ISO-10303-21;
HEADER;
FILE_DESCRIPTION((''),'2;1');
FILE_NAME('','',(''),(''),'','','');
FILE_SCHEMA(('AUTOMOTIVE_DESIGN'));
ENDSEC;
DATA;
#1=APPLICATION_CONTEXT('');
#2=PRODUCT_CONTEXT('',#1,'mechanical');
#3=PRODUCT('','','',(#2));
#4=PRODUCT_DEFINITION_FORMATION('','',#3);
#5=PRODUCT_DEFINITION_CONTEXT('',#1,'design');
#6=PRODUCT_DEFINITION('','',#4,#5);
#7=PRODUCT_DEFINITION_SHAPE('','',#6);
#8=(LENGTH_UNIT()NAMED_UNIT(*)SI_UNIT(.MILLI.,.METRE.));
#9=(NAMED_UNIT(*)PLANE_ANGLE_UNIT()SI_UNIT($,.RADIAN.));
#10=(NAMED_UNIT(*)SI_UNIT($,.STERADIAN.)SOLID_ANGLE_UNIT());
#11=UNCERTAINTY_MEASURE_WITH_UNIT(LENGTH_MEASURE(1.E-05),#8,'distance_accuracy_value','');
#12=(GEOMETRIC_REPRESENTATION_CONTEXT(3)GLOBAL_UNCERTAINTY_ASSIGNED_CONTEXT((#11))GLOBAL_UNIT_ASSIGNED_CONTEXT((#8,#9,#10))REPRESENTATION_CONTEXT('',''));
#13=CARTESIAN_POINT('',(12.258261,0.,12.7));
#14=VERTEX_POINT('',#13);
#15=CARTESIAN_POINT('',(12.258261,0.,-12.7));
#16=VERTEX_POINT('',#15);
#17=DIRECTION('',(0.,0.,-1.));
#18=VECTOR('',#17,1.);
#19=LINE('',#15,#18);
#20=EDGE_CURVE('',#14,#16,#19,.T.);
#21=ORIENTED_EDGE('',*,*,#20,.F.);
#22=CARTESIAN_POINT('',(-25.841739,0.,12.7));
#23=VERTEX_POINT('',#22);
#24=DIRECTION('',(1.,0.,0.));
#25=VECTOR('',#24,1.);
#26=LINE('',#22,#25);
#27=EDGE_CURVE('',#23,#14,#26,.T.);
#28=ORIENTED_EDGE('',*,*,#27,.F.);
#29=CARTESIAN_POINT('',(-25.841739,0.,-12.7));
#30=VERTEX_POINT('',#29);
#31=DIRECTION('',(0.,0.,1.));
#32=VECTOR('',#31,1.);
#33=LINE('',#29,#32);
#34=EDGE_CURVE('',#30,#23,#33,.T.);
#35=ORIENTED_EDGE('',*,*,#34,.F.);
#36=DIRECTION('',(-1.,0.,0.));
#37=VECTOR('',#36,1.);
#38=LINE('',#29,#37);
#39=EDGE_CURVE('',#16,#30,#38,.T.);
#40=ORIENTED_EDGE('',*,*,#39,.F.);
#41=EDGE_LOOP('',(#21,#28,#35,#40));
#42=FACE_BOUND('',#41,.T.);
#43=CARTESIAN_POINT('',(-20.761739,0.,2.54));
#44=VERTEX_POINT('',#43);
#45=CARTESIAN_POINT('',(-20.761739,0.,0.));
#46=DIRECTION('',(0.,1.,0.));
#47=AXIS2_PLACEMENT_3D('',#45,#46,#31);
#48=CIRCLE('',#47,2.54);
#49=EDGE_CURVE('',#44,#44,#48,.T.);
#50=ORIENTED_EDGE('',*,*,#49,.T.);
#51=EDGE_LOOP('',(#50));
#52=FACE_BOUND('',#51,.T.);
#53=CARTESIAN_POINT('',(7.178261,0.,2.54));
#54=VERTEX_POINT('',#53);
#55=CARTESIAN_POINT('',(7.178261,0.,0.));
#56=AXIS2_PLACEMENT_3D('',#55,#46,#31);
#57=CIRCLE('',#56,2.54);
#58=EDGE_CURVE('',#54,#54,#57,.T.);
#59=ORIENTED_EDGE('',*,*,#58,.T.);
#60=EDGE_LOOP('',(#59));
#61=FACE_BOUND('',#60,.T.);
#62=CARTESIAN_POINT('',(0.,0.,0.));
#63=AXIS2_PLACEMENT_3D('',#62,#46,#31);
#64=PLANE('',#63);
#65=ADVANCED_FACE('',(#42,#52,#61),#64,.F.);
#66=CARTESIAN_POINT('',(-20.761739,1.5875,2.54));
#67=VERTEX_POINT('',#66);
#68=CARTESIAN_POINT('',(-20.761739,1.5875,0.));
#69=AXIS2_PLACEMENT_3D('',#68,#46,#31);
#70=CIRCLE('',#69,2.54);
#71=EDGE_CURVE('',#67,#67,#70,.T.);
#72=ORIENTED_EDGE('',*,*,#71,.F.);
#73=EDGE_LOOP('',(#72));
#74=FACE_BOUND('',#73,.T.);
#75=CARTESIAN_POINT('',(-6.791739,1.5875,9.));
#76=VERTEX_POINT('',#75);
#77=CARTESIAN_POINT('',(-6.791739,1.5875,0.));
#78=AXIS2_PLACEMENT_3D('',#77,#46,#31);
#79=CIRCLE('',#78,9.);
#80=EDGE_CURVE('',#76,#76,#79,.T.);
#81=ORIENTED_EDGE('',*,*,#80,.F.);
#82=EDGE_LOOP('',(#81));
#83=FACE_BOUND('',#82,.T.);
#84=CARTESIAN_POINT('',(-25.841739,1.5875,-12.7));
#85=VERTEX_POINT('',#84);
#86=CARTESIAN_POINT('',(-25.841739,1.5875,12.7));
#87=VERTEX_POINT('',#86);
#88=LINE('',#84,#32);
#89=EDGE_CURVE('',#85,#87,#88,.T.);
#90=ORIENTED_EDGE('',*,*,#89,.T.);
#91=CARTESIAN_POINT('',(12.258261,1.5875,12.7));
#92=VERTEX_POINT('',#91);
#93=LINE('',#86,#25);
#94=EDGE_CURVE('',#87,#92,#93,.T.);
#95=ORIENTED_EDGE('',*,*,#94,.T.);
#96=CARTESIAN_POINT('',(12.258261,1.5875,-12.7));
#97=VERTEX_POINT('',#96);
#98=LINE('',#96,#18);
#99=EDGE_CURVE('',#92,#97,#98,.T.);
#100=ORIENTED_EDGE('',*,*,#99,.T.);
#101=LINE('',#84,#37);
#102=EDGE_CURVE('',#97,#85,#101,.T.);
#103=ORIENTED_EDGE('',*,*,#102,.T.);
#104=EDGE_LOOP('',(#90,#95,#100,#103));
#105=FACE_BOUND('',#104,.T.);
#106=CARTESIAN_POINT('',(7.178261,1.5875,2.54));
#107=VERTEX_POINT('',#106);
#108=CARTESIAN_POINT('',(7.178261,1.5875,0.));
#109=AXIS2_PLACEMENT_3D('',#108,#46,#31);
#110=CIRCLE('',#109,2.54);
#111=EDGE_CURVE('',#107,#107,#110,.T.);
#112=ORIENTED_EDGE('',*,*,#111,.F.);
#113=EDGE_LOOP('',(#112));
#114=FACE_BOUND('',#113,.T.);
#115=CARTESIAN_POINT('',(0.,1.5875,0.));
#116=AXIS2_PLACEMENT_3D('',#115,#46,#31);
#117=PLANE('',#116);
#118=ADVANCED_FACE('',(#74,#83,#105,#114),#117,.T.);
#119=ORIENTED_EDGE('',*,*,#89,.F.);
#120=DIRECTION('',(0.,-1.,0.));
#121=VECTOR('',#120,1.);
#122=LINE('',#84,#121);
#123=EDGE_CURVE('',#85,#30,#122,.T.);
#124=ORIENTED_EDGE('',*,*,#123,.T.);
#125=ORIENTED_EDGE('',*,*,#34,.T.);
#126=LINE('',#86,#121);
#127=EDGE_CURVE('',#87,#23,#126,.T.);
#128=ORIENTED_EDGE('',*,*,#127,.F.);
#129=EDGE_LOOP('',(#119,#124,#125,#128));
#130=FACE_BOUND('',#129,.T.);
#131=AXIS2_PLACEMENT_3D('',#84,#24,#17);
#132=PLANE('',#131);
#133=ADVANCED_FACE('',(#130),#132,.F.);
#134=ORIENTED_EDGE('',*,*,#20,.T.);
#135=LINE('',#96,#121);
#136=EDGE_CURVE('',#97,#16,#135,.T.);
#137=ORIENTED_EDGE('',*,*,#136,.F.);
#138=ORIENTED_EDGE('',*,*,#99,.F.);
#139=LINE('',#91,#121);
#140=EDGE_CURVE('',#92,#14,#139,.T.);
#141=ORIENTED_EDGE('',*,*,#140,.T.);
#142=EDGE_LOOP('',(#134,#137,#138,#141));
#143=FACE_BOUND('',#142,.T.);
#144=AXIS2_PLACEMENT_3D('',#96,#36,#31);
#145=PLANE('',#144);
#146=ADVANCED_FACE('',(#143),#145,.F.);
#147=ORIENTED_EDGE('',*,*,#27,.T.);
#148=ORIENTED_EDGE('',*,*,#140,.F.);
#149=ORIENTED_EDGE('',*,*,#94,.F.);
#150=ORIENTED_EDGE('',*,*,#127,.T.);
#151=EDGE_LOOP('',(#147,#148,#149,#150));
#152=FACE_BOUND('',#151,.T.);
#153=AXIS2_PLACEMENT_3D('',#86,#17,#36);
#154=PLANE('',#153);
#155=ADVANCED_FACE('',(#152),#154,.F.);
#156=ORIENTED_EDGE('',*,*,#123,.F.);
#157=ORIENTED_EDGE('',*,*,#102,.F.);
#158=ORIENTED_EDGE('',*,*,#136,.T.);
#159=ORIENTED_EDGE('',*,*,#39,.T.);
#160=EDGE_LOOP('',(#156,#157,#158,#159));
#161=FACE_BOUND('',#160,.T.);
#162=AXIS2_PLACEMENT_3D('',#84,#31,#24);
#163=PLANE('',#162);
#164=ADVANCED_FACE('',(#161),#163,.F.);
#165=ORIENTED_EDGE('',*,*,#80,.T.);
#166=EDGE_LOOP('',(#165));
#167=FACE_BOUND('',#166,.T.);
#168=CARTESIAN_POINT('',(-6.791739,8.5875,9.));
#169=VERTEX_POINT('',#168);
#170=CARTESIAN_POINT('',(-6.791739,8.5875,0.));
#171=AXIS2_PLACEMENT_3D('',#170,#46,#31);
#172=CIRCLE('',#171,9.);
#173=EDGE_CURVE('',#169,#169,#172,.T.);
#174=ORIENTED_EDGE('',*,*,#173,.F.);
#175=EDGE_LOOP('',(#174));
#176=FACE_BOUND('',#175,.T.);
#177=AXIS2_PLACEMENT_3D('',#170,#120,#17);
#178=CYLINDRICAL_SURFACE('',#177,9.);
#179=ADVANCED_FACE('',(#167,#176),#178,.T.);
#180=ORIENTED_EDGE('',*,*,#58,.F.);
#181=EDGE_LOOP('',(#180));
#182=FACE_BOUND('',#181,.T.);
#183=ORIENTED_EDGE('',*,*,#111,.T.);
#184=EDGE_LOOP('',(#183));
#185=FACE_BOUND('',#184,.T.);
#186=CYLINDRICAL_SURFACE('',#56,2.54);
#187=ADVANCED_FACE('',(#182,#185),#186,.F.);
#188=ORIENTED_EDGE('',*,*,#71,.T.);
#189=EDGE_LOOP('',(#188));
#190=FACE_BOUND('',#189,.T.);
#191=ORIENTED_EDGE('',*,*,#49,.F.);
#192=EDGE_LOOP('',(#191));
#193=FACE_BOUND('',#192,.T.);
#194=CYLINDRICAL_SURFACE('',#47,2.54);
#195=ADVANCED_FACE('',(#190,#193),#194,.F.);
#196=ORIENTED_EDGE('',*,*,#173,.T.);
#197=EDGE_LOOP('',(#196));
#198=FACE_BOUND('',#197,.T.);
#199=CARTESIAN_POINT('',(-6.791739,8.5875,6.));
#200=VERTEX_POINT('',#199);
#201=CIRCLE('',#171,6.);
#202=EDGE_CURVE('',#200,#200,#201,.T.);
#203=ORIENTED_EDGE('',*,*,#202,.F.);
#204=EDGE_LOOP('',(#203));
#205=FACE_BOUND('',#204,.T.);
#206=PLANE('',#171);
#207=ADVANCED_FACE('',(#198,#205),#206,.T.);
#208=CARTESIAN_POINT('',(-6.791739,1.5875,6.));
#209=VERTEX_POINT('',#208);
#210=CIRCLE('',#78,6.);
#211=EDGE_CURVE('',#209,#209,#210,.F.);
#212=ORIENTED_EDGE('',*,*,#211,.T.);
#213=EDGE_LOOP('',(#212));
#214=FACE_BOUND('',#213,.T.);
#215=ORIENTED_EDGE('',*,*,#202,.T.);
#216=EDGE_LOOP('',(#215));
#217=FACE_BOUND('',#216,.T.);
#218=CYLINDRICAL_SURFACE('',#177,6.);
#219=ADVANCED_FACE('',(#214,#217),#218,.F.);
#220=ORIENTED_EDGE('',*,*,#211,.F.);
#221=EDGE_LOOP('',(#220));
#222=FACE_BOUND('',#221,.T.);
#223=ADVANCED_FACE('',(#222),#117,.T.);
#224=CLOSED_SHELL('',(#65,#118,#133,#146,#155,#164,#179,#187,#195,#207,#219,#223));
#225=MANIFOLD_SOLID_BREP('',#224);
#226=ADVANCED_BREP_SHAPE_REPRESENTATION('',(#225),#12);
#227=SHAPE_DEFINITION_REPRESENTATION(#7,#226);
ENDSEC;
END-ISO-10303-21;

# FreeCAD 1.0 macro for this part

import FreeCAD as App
import Part
import Sketcher
Q = App.Units.Quantity

doc = App.newDocument("Part")
body = doc.addObject("PartDesign::Body", "Body")

# Sketch on XZ plane
sketch1 = doc.addObject("Sketcher::SketchObject", "Sketch")
body.addObject(sketch1)
sketch1.AttachmentSupport = (doc.XZ_Plane, [""])
sketch1.MapMode = "FlatFace"
sketch1.addGeometry([
    Part.LineSegment(App.Vector(-26, -13, 0), App.Vector(-26, 13, 0)),
    Part.LineSegment(App.Vector(-26, 13, 0), App.Vector(12, 13, 0)),
    Part.LineSegment(App.Vector(12, 13, 0), App.Vector(12, -13, 0)),
    Part.LineSegment(App.Vector(12, -13, 0), App.Vector(-26, -13, 0)),
], False)
sketch1.addConstraint([
    Sketcher.Constraint("Coincident", 0, 2, 1, 1),
    Sketcher.Constraint("Coincident", 1, 2, 2, 1),
    Sketcher.Constraint("Coincident", 2, 2, 3, 1),
    Sketcher.Constraint("Coincident", 3, 2, 0, 1),
    Sketcher.Constraint("Vertical", 0),
    Sketcher.Constraint("Horizontal", 1),
    Sketcher.Constraint("Vertical", 2),
    Sketcher.Constraint("Horizontal", 3),
    Sketcher.Constraint("DistanceY", 0, 1, 0, 2, Q("1 in")),
    Sketcher.Constraint("DistanceX", 1, 1, 1, 2, Q("1.5 in")),
    Sketcher.Constraint("DistanceY", -1, 1, 0, 2, Q("0.5 in")),
    Sketcher.Constraint("DistanceX", 0, 2, -1, 1, 25.841739),
])
pad1 = doc.addObject("PartDesign::Pad", "Pad")
body.addObject(pad1)
pad1.Profile = sketch1
pad1.Length = Q("0.0625 in")
pad1.Reversed = True

# Sketch on XZ plane
sketch2 = doc.addObject("Sketcher::SketchObject", "Sketch001")
body.addObject(sketch2)
sketch2.AttachmentSupport = (doc.XZ_Plane, [""])
sketch2.MapMode = "FlatFace"
sketch2.AttachmentOffset = App.Placement(App.Vector(0, 0, -0.0625 * 25.4), App.Rotation())
sketch2.addGeometry([
    Part.Circle(App.Vector(-7, 0, 0), App.Vector(0, 0, 1), 9),
    Part.Circle(App.Vector(-7, 0, 0), App.Vector(0, 0, 1), 6),
], False)
sketch2.addConstraint([
    Sketcher.Constraint("Coincident", 1, 3, 0, 3),
    Sketcher.Constraint("PointOnObject", 0, 3, -1),
    Sketcher.Constraint("Diameter", 0, 18.0),
    Sketcher.Constraint("Diameter", 1, 12.0),
    Sketcher.Constraint("DistanceX", 0, 3, -1, 1, 6.791739),
])
pad2 = doc.addObject("PartDesign::Pad", "Pad001")
body.addObject(pad2)
pad2.Profile = sketch2
pad2.Length = 7
pad2.Reversed = True

# Sketch on XZ plane
sketch3 = doc.addObject("Sketcher::SketchObject", "Sketch002")
body.addObject(sketch3)
sketch3.AttachmentSupport = (doc.XZ_Plane, [""])
sketch3.MapMode = "FlatFace"
sketch3.AttachmentOffset = App.Placement(App.Vector(0, 0, -0.0625 * 25.4), App.Rotation())
sketch3.addGeometry([
    Part.Circle(App.Vector(7.2, 0, 0), App.Vector(0, 0, 1), 2.5),
    Part.Circle(App.Vector(-20.8, 0, 0), App.Vector(0, 0, 1), 2.5),
], False)
sketch3.addConstraint([
    Sketcher.Constraint("Equal", 0, 1),
    Sketcher.Constraint("PointOnObject", 0, 3, -1),
    Sketcher.Constraint("PointOnObject", 1, 3, -1),
    Sketcher.Constraint("Diameter", 0, Q("0.2 in")),
    Sketcher.Constraint("DistanceX", 1, 3, 0, 3, Q("1.1 in")),
    Sketcher.Constraint("DistanceX", -1, 1, 0, 3, 7.178261),
])
pocket1 = doc.addObject("PartDesign::Pocket", "Pocket")
body.addObject(pocket1)
pocket1.Profile = sketch3
pocket1.Type = "ThroughAll"
pocket1.Reversed = True

doc.recompute()
